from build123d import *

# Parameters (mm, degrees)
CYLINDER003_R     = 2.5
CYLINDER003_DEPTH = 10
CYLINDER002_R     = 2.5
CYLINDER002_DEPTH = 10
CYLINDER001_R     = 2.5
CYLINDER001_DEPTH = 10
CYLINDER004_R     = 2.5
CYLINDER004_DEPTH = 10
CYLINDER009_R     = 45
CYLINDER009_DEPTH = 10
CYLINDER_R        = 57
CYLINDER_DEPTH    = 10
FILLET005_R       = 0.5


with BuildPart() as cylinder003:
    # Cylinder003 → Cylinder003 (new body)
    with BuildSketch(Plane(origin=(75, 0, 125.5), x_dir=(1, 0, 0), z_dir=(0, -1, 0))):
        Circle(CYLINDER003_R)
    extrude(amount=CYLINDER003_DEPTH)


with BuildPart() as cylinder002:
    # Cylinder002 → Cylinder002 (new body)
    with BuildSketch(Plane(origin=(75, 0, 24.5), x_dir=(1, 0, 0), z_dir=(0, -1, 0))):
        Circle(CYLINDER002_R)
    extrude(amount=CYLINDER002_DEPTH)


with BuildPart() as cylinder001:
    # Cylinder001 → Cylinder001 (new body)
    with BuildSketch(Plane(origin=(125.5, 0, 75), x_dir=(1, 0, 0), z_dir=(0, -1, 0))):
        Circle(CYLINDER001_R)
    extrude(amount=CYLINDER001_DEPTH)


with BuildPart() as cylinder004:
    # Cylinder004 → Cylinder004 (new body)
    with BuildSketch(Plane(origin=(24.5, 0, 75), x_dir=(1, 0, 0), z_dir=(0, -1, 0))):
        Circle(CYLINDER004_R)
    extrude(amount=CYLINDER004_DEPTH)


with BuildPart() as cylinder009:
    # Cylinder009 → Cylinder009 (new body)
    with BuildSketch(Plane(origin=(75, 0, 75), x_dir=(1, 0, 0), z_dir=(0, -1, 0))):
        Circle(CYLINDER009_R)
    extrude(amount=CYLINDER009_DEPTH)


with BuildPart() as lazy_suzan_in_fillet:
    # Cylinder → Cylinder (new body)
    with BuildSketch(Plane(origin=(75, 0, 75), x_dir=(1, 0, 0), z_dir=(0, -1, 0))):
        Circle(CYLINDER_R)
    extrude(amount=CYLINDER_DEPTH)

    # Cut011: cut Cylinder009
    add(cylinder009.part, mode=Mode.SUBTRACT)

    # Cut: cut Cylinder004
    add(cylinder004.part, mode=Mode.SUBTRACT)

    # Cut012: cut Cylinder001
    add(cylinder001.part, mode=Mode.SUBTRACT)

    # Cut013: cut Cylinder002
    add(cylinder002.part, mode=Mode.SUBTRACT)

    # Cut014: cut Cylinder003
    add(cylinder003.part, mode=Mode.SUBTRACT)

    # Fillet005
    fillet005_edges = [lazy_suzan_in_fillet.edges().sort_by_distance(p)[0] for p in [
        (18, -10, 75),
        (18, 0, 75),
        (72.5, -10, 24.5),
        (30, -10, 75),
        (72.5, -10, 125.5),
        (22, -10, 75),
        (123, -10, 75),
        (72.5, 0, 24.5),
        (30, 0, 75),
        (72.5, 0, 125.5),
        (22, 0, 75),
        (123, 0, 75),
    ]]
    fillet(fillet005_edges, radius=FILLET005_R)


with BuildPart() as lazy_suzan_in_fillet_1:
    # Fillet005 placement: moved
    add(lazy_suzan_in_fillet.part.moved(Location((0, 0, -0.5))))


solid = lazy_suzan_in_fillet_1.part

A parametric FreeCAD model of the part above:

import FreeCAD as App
import Part
import Sketcher


def edges_at(feature, points):
    """Names of the edges that pass closest to the given points."""
    edges = feature.Shape.Edges
    near = lambda p: min(range(len(edges)), key=lambda i: edges[i].distToShape(Part.Vertex(*p))[0])
    return sorted({f"Edge{near(p) + 1}" for p in points})

doc = App.newDocument("Part")
body = doc.addObject("PartDesign::Body", "Body")

sketch1 = doc.addObject("Sketcher::SketchObject", "Sketch")
body.addObject(sketch1)
sketch1.AttachmentSupport = (doc.XZ_Plane, [""])
sketch1.MapMode = "FlatFace"
sketch1.addGeometry(Part.Circle(App.Vector(75, 125.5, 0), App.Vector(0, 0, 1), 2.5), False)
sketch1.addConstraint([
    Sketcher.Constraint("Diameter", 0, 5.0),
    Sketcher.Constraint("DistanceX", -1, 1, 0, 3, 75.0),
    Sketcher.Constraint("DistanceY", -1, 1, 0, 3, 125.5),
])
pad1 = doc.addObject("PartDesign::Pad", "Pad")
body.addObject(pad1)
pad1.Profile = sketch1
pad1.Length = 10
body2 = doc.addObject("PartDesign::Body", "Body001")

sketch2 = doc.addObject("Sketcher::SketchObject", "Sketch001")
body2.addObject(sketch2)
sketch2.AttachmentSupport = (doc.getObject("XZ_Plane001"), [""])
sketch2.MapMode = "FlatFace"
sketch2.addGeometry(Part.Circle(App.Vector(75, 24.5, 0), App.Vector(0, 0, 1), 2.5), False)
sketch2.addConstraint([
    Sketcher.Constraint("Diameter", 0, 5.0),
    Sketcher.Constraint("DistanceX", -1, 1, 0, 3, 75.0),
    Sketcher.Constraint("DistanceY", -1, 1, 0, 3, 24.5),
])
pad2 = doc.addObject("PartDesign::Pad", "Pad001")
body2.addObject(pad2)
pad2.Profile = sketch2
pad2.Length = 10
body3 = doc.addObject("PartDesign::Body", "Body002")

sketch3 = doc.addObject("Sketcher::SketchObject", "Sketch002")
body3.addObject(sketch3)
sketch3.AttachmentSupport = (doc.getObject("XZ_Plane002"), [""])
sketch3.MapMode = "FlatFace"
sketch3.addGeometry(Part.Circle(App.Vector(125.5, 75, 0), App.Vector(0, 0, 1), 2.5), False)
sketch3.addConstraint([
    Sketcher.Constraint("Diameter", 0, 5.0),
    Sketcher.Constraint("DistanceY", -1, 1, 0, 3, 75.0),
    Sketcher.Constraint("DistanceX", -1, 1, 0, 3, 125.5),
])
pad3 = doc.addObject("PartDesign::Pad", "Pad002")
body3.addObject(pad3)
pad3.Profile = sketch3
pad3.Length = 10
body4 = doc.addObject("PartDesign::Body", "Body003")

sketch4 = doc.addObject("Sketcher::SketchObject", "Sketch003")
body4.addObject(sketch4)
sketch4.AttachmentSupport = (doc.getObject("XZ_Plane003"), [""])
sketch4.MapMode = "FlatFace"
sketch4.addGeometry(Part.Circle(App.Vector(24.5, 75, 0), App.Vector(0, 0, 1), 2.5), False)
sketch4.addConstraint([
    Sketcher.Constraint("Diameter", 0, 5.0),
    Sketcher.Constraint("DistanceY", -1, 1, 0, 3, 75.0),
    Sketcher.Constraint("DistanceX", -1, 1, 0, 3, 24.5),
])
pad4 = doc.addObject("PartDesign::Pad", "Pad003")
body4.addObject(pad4)
pad4.Profile = sketch4
pad4.Length = 10
body5 = doc.addObject("PartDesign::Body", "Body004")

sketch5 = doc.addObject("Sketcher::SketchObject", "Sketch004")
body5.addObject(sketch5)
sketch5.AttachmentSupport = (doc.getObject("XZ_Plane004"), [""])
sketch5.MapMode = "FlatFace"
sketch5.addGeometry(Part.Circle(App.Vector(75, 75, 0), App.Vector(0, 0, 1), 45), False)
sketch5.addConstraint([
    Sketcher.Constraint("Diameter", 0, 90.0),
    Sketcher.Constraint("DistanceX", -1, 1, 0, 3, 75.0),
    Sketcher.Constraint("DistanceY", -1, 1, 0, 3, 75.0),
])
pad5 = doc.addObject("PartDesign::Pad", "Pad004")
body5.addObject(pad5)
pad5.Profile = sketch5
pad5.Length = 10
body6 = doc.addObject("PartDesign::Body", "Body005")

sketch6 = doc.addObject("Sketcher::SketchObject", "Sketch005")
body6.addObject(sketch6)
sketch6.AttachmentSupport = (doc.getObject("XZ_Plane005"), [""])
sketch6.MapMode = "FlatFace"
sketch6.addGeometry(Part.Circle(App.Vector(75, 75, 0), App.Vector(0, 0, 1), 57), False)
sketch6.addConstraint([
    Sketcher.Constraint("Diameter", 0, 114.0),
    Sketcher.Constraint("DistanceX", -1, 1, 0, 3, 75.0),
    Sketcher.Constraint("DistanceY", -1, 1, 0, 3, 75.0),
])
pad6 = doc.addObject("PartDesign::Pad", "Pad005")
body6.addObject(pad6)
pad6.Profile = sketch6
pad6.Length = 10
doc.recompute()

boolean = doc.addObject("PartDesign::Boolean", "Boolean")
body6.addObject(boolean)
boolean.Type = "Cut"
boolean.addObjects([body5])
doc.recompute()

boolean2 = doc.addObject("PartDesign::Boolean", "Boolean001")
body6.addObject(boolean2)
boolean2.Type = "Cut"
boolean2.addObjects([body4])
doc.recompute()

boolean3 = doc.addObject("PartDesign::Boolean", "Boolean002")
body6.addObject(boolean3)
boolean3.Type = "Cut"
boolean3.addObjects([body3])
doc.recompute()

boolean4 = doc.addObject("PartDesign::Boolean", "Boolean003")
body6.addObject(boolean4)
boolean4.Type = "Cut"
boolean4.addObjects([body2])
doc.recompute()

boolean5 = doc.addObject("PartDesign::Boolean", "Boolean004")
body6.addObject(boolean5)
boolean5.Type = "Cut"
boolean5.addObjects([body])
doc.recompute()

fillet = doc.addObject("PartDesign::Fillet", "Fillet")
body6.addObject(fillet)
fillet.Base = (boolean5, edges_at(boolean5, [
    (18, -10, 75),
    (18, 0, 75),
    (72.5, -10, 24.5),
    (30, -10, 75),
    (72.5, -10, 125.5),
    (22, -10, 75),
    (123, -10, 75),
    (72.5, 0, 24.5),
    (30, 0, 75),
    (72.5, 0, 125.5),
    (22, 0, 75),
    (123, 0, 75),
]))
fillet.Radius = 0.5
body7 = doc.addObject("PartDesign::Body", "Body006")
doc.recompute()

body6.Placement = App.Placement(App.Vector(0, 0, -0.5), App.Rotation(App.Vector(0, 0, 1), 0))
boolean6 = doc.addObject("PartDesign::Boolean", "Boolean005")
body7.addObject(boolean6)
boolean6.Type = "Fuse"
boolean6.addObjects([body6])

doc.recompute()
